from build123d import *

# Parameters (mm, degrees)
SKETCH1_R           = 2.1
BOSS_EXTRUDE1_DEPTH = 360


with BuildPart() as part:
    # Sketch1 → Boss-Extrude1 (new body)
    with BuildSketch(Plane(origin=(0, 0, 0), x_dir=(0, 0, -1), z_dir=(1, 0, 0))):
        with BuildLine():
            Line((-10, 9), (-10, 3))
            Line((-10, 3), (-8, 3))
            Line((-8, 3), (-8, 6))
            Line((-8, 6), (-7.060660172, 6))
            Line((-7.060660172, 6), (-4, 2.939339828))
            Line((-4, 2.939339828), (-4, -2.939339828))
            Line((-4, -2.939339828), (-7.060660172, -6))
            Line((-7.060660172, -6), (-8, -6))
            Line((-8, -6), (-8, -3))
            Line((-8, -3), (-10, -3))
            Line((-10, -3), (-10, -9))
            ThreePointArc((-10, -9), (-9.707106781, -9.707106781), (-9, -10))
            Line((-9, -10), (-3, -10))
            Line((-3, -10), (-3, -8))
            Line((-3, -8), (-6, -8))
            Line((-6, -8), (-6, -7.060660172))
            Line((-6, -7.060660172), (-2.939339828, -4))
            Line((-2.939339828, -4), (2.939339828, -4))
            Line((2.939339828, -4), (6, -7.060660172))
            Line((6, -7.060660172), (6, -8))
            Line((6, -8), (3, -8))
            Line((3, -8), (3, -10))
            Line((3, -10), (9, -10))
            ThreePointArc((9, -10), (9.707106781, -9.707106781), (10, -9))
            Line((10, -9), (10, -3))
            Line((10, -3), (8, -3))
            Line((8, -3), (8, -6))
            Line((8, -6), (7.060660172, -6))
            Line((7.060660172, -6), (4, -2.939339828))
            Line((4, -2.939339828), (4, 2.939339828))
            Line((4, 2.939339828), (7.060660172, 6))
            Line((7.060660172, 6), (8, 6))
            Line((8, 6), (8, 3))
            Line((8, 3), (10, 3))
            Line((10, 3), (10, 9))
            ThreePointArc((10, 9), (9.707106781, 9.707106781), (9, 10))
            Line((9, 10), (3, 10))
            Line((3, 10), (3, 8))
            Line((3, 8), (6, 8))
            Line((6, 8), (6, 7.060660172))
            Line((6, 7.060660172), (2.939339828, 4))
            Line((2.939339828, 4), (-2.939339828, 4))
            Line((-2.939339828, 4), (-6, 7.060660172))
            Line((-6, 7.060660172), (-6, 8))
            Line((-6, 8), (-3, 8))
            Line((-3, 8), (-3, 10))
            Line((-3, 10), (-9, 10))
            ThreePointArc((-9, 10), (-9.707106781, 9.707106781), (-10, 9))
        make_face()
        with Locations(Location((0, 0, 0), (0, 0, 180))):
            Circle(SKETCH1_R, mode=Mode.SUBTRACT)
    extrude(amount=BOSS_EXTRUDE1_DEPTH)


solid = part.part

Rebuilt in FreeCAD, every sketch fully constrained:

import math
import FreeCAD as App
import Part
import Sketcher

V = App.Vector

doc = App.newDocument("Part")
body = doc.addObject("PartDesign::Body", "Body")

# Sketch on YZ plane
sketch1 = body.newObject("Sketcher::SketchObject", "Sketch")
sketch1.AttachmentSupport = (doc.getObject("YZ_Plane"), [""])
sketch1.MapMode = "FlatFace"
sketch1.addGeometry(Part.LineSegment(V(9, 10, 0), V(3, 10, 0)), False)
sketch1.addGeometry(Part.LineSegment(V(3, 10, 0), V(3, 8, 0)), False)
sketch1.addGeometry(Part.LineSegment(V(3, 8, 0), V(6, 8, 0)), False)
sketch1.addGeometry(Part.LineSegment(V(6, 8, 0), V(6, 7.1, 0)), False)
sketch1.addGeometry(Part.LineSegment(V(6, 7.1, 0), V(2.9, 4, 0)), False)
sketch1.addGeometry(Part.LineSegment(V(2.9, 4, 0), V(-2.9, 4, 0)), False)
sketch1.addGeometry(Part.LineSegment(V(-2.9, 4, 0), V(-6, 7.1, 0)), False)
sketch1.addGeometry(Part.LineSegment(V(-6, 7.1, 0), V(-6, 8, 0)), False)
sketch1.addGeometry(Part.LineSegment(V(-6, 8, 0), V(-3, 8, 0)), False)
sketch1.addGeometry(Part.LineSegment(V(-3, 8, 0), V(-3, 10, 0)), False)
sketch1.addGeometry(Part.LineSegment(V(-3, 10, 0), V(-9, 10, 0)), False)
sketch1.addGeometry(Part.ArcOfCircle(Part.Circle(V(-9, 9, 0), V(0, 0, 1), 1), math.radians(90), math.radians(180)), False)
sketch1.addGeometry(Part.LineSegment(V(-10, 9, 0), V(-10, 3, 0)), False)
sketch1.addGeometry(Part.LineSegment(V(-10, 3, 0), V(-8, 3, 0)), False)
sketch1.addGeometry(Part.LineSegment(V(-8, 3, 0), V(-8, 6, 0)), False)
sketch1.addGeometry(Part.LineSegment(V(-8, 6, 0), V(-7.1, 6, 0)), False)
sketch1.addGeometry(Part.LineSegment(V(-7.1, 6, 0), V(-4, 2.9, 0)), False)
sketch1.addGeometry(Part.LineSegment(V(-4, 2.9, 0), V(-4, -2.9, 0)), False)
sketch1.addGeometry(Part.LineSegment(V(-4, -2.9, 0), V(-7.1, -6, 0)), False)
sketch1.addGeometry(Part.LineSegment(V(-7.1, -6, 0), V(-8, -6, 0)), False)
sketch1.addGeometry(Part.LineSegment(V(-8, -6, 0), V(-8, -3, 0)), False)
sketch1.addGeometry(Part.LineSegment(V(-8, -3, 0), V(-10, -3, 0)), False)
sketch1.addGeometry(Part.LineSegment(V(-10, -3, 0), V(-10, -9, 0)), False)
sketch1.addGeometry(Part.ArcOfCircle(Part.Circle(V(-9, -9, 0), V(0, 0, 1), 1), math.radians(-180), math.radians(-90)), False)
sketch1.addGeometry(Part.LineSegment(V(-9, -10, 0), V(-3, -10, 0)), False)
sketch1.addGeometry(Part.LineSegment(V(-3, -10, 0), V(-3, -8, 0)), False)
sketch1.addGeometry(Part.LineSegment(V(-3, -8, 0), V(-6, -8, 0)), False)
sketch1.addGeometry(Part.LineSegment(V(-6, -8, 0), V(-6, -7.1, 0)), False)
sketch1.addGeometry(Part.LineSegment(V(-6, -7.1, 0), V(-2.9, -4, 0)), False)
sketch1.addGeometry(Part.LineSegment(V(-2.9, -4, 0), V(2.9, -4, 0)), False)
sketch1.addGeometry(Part.LineSegment(V(2.9, -4, 0), V(6, -7.1, 0)), False)
sketch1.addGeometry(Part.LineSegment(V(6, -7.1, 0), V(6, -8, 0)), False)
sketch1.addGeometry(Part.LineSegment(V(6, -8, 0), V(3, -8, 0)), False)
sketch1.addGeometry(Part.LineSegment(V(3, -8, 0), V(3, -10, 0)), False)
sketch1.addGeometry(Part.LineSegment(V(3, -10, 0), V(9, -10, 0)), False)
sketch1.addGeometry(Part.ArcOfCircle(Part.Circle(V(9, -9, 0), V(0, 0, 1), 1), math.radians(-90), math.radians(0)), False)
sketch1.addGeometry(Part.LineSegment(V(10, -9, 0), V(10, -3, 0)), False)
sketch1.addGeometry(Part.LineSegment(V(10, -3, 0), V(8, -3, 0)), False)
sketch1.addGeometry(Part.LineSegment(V(8, -3, 0), V(8, -6, 0)), False)
sketch1.addGeometry(Part.LineSegment(V(8, -6, 0), V(7.1, -6, 0)), False)
sketch1.addGeometry(Part.LineSegment(V(7.1, -6, 0), V(4, -2.9, 0)), False)
sketch1.addGeometry(Part.LineSegment(V(4, -2.9, 0), V(4, 2.9, 0)), False)
sketch1.addGeometry(Part.LineSegment(V(4, 2.9, 0), V(7.1, 6, 0)), False)
sketch1.addGeometry(Part.LineSegment(V(7.1, 6, 0), V(8, 6, 0)), False)
sketch1.addGeometry(Part.LineSegment(V(8, 6, 0), V(8, 3, 0)), False)
sketch1.addGeometry(Part.LineSegment(V(8, 3, 0), V(10, 3, 0)), False)
sketch1.addGeometry(Part.LineSegment(V(10, 3, 0), V(10, 9, 0)), False)
sketch1.addGeometry(Part.ArcOfCircle(Part.Circle(V(9, 9, 0), V(0, 0, 1), 1), math.radians(0), math.radians(90)), False)
sketch1.addGeometry(Part.Circle(V(0, 0, 0), V(0, 0, 1), 2.1), False)
sketch1.addConstraint(Sketcher.Constraint("Coincident", 0, 2, 1, 1))
sketch1.addConstraint(Sketcher.Constraint("Coincident", 1, 2, 2, 1))
sketch1.addConstraint(Sketcher.Constraint("Coincident", 2, 2, 3, 1))
sketch1.addConstraint(Sketcher.Constraint("Coincident", 3, 2, 4, 1))
sketch1.addConstraint(Sketcher.Constraint("Coincident", 4, 2, 5, 1))
sketch1.addConstraint(Sketcher.Constraint("Coincident", 5, 2, 6, 1))
sketch1.addConstraint(Sketcher.Constraint("Coincident", 6, 2, 7, 1))
sketch1.addConstraint(Sketcher.Constraint("Coincident", 7, 2, 8, 1))
sketch1.addConstraint(Sketcher.Constraint("Coincident", 8, 2, 9, 1))
sketch1.addConstraint(Sketcher.Constraint("Coincident", 9, 2, 10, 1))
sketch1.addConstraint(Sketcher.Constraint("Tangent", 10, 2, 11, 1))
sketch1.addConstraint(Sketcher.Constraint("Tangent", 11, 2, 12, 1))
sketch1.addConstraint(Sketcher.Constraint("Coincident", 12, 2, 13, 1))
sketch1.addConstraint(Sketcher.Constraint("Coincident", 13, 2, 14, 1))
sketch1.addConstraint(Sketcher.Constraint("Coincident", 14, 2, 15, 1))
sketch1.addConstraint(Sketcher.Constraint("Coincident", 15, 2, 16, 1))
sketch1.addConstraint(Sketcher.Constraint("Coincident", 16, 2, 17, 1))
sketch1.addConstraint(Sketcher.Constraint("Coincident", 17, 2, 18, 1))
sketch1.addConstraint(Sketcher.Constraint("Coincident", 18, 2, 19, 1))
sketch1.addConstraint(Sketcher.Constraint("Coincident", 19, 2, 20, 1))
sketch1.addConstraint(Sketcher.Constraint("Coincident", 20, 2, 21, 1))
sketch1.addConstraint(Sketcher.Constraint("Coincident", 21, 2, 22, 1))
sketch1.addConstraint(Sketcher.Constraint("Tangent", 22, 2, 23, 1))
sketch1.addConstraint(Sketcher.Constraint("Tangent", 23, 2, 24, 1))
sketch1.addConstraint(Sketcher.Constraint("Coincident", 24, 2, 25, 1))
sketch1.addConstraint(Sketcher.Constraint("Coincident", 25, 2, 26, 1))
sketch1.addConstraint(Sketcher.Constraint("Coincident", 26, 2, 27, 1))
sketch1.addConstraint(Sketcher.Constraint("Coincident", 27, 2, 28, 1))
sketch1.addConstraint(Sketcher.Constraint("Coincident", 28, 2, 29, 1))
sketch1.addConstraint(Sketcher.Constraint("Coincident", 29, 2, 30, 1))
sketch1.addConstraint(Sketcher.Constraint("Coincident", 30, 2, 31, 1))
sketch1.addConstraint(Sketcher.Constraint("Coincident", 31, 2, 32, 1))
sketch1.addConstraint(Sketcher.Constraint("Coincident", 32, 2, 33, 1))
sketch1.addConstraint(Sketcher.Constraint("Coincident", 33, 2, 34, 1))
sketch1.addConstraint(Sketcher.Constraint("Tangent", 34, 2, 35, 1))
sketch1.addConstraint(Sketcher.Constraint("Tangent", 35, 2, 36, 1))
sketch1.addConstraint(Sketcher.Constraint("Coincident", 36, 2, 37, 1))
sketch1.addConstraint(Sketcher.Constraint("Coincident", 37, 2, 38, 1))
sketch1.addConstraint(Sketcher.Constraint("Coincident", 38, 2, 39, 1))
sketch1.addConstraint(Sketcher.Constraint("Coincident", 39, 2, 40, 1))
sketch1.addConstraint(Sketcher.Constraint("Coincident", 40, 2, 41, 1))
sketch1.addConstraint(Sketcher.Constraint("Coincident", 41, 2, 42, 1))
sketch1.addConstraint(Sketcher.Constraint("Coincident", 42, 2, 43, 1))
sketch1.addConstraint(Sketcher.Constraint("Coincident", 43, 2, 44, 1))
sketch1.addConstraint(Sketcher.Constraint("Coincident", 44, 2, 45, 1))
sketch1.addConstraint(Sketcher.Constraint("Coincident", 45, 2, 46, 1))
sketch1.addConstraint(Sketcher.Constraint("Tangent", 46, 2, 47, 1))
sketch1.addConstraint(Sketcher.Constraint("Tangent", 47, 2, 0, 1))
sketch1.addConstraint(Sketcher.Constraint("Horizontal", 0))
sketch1.addConstraint(Sketcher.Constraint("Vertical", 1))
sketch1.addConstraint(Sketcher.Constraint("Horizontal", 2))
sketch1.addConstraint(Sketcher.Constraint("Vertical", 3))
sketch1.addConstraint(Sketcher.Constraint("Horizontal", 5))
sketch1.addConstraint(Sketcher.Constraint("Vertical", 7))
sketch1.addConstraint(Sketcher.Constraint("Horizontal", 8))
sketch1.addConstraint(Sketcher.Constraint("Vertical", 9))
sketch1.addConstraint(Sketcher.Constraint("Horizontal", 10))
sketch1.addConstraint(Sketcher.Constraint("Vertical", 12))
sketch1.addConstraint(Sketcher.Constraint("Horizontal", 13))
sketch1.addConstraint(Sketcher.Constraint("Vertical", 14))
sketch1.addConstraint(Sketcher.Constraint("Horizontal", 15))
sketch1.addConstraint(Sketcher.Constraint("Vertical", 17))
sketch1.addConstraint(Sketcher.Constraint("Horizontal", 19))
sketch1.addConstraint(Sketcher.Constraint("Vertical", 20))
sketch1.addConstraint(Sketcher.Constraint("Horizontal", 21))
sketch1.addConstraint(Sketcher.Constraint("Vertical", 22))
sketch1.addConstraint(Sketcher.Constraint("Horizontal", 24))
sketch1.addConstraint(Sketcher.Constraint("Vertical", 25))
sketch1.addConstraint(Sketcher.Constraint("Horizontal", 26))
sketch1.addConstraint(Sketcher.Constraint("Vertical", 27))
sketch1.addConstraint(Sketcher.Constraint("Horizontal", 29))
sketch1.addConstraint(Sketcher.Constraint("Vertical", 31))
sketch1.addConstraint(Sketcher.Constraint("Horizontal", 32))
sketch1.addConstraint(Sketcher.Constraint("Vertical", 33))
sketch1.addConstraint(Sketcher.Constraint("Horizontal", 34))
sketch1.addConstraint(Sketcher.Constraint("Vertical", 36))
sketch1.addConstraint(Sketcher.Constraint("Horizontal", 37))
sketch1.addConstraint(Sketcher.Constraint("Vertical", 38))
sketch1.addConstraint(Sketcher.Constraint("Horizontal", 39))
sketch1.addConstraint(Sketcher.Constraint("Vertical", 41))
sketch1.addConstraint(Sketcher.Constraint("Horizontal", 43))
sketch1.addConstraint(Sketcher.Constraint("Vertical", 44))
sketch1.addConstraint(Sketcher.Constraint("Horizontal", 45))
sketch1.addConstraint(Sketcher.Constraint("Vertical", 46))
sketch1.addConstraint(Sketcher.Constraint("Coincident", 48, 3, -1, 1))
sketch1.addConstraint(Sketcher.Constraint("Equal", 11, 23))
sketch1.addConstraint(Sketcher.Constraint("Equal", 23, 35))
sketch1.addConstraint(Sketcher.Constraint("Equal", 35, 47))
sketch1.addConstraint(Sketcher.Constraint("Symmetric", 11, 3, 35, 3, -1, 1))
sketch1.addConstraint(Sketcher.Constraint("Symmetric", 23, 3, 47, 3, -1, 1))
sketch1.addConstraint(Sketcher.Constraint("Symmetric", 1, 2, 25, 2, -1, 1))
sketch1.addConstraint(Sketcher.Constraint("Symmetric", 3, 2, 27, 2, -1, 1))
sketch1.addConstraint(Sketcher.Constraint("Symmetric", 4, 2, 28, 2, -1, 1))
sketch1.addConstraint(Sketcher.Constraint("Symmetric", 6, 2, 30, 2, -1, 1))
sketch1.addConstraint(Sketcher.Constraint("Symmetric", 8, 2, 32, 2, -1, 1))
sketch1.addConstraint(Sketcher.Constraint("Symmetric", 13, 2, 37, 2, -1, 1))
sketch1.addConstraint(Sketcher.Constraint("Symmetric", 15, 2, 39, 2, -1, 1))
sketch1.addConstraint(Sketcher.Constraint("Symmetric", 16, 2, 40, 2, -1, 1))
sketch1.addConstraint(Sketcher.Constraint("Symmetric", 18, 2, 42, 2, -1, 1))
sketch1.addConstraint(Sketcher.Constraint("Symmetric", 20, 2, 44, 2, -1, 1))
sketch1.addConstraint(Sketcher.Constraint("Symmetric", 23, 3, 35, 3, -2))
sketch1.addConstraint(Sketcher.Constraint("Symmetric", 3, 2, 6, 2, -2))
sketch1.addConstraint(Sketcher.Constraint("Symmetric", 1, 2, 8, 2, -2))
sketch1.addConstraint(Sketcher.Constraint("Symmetric", 20, 2, 37, 2, -2))
sketch1.addConstraint(Sketcher.Constraint("Symmetric", 18, 2, 39, 2, -2))
sketch1.addConstraint(Sketcher.Constraint("Perpendicular", 4, 6))
sketch1.addConstraint(Sketcher.Constraint("Parallel", 6, 16))
sketch1.addConstraint(Sketcher.Constraint("Perpendicular", 16, 18))
sketch1.addConstraint(Sketcher.Constraint("Perpendicular", 28, 30))
sketch1.addConstraint(Sketcher.Constraint("Perpendicular", 40, 42))
sketch1.addConstraint(Sketcher.Constraint("Horizontal", 17, 2, 40, 2))
sketch1.addConstraint(Sketcher.Constraint("Equal", 45, 1))
sketch1.addConstraint(Sketcher.Constraint("Equal", 43, 3))
sketch1.addConstraint(Sketcher.Constraint("Equal", 34, 12))
sketch1.addConstraint(Sketcher.Constraint("Equal", 32, 14))
sketch1.addConstraint(Sketcher.Constraint("Equal", 29, 17))
sketch1.addConstraint(Sketcher.Constraint("Equal", 6, 16))
sketch1.addConstraint(Sketcher.Constraint("Radius", 11, 1.0))
sketch1.addConstraint(Sketcher.Constraint("Diameter", 48, 4.2))
sketch1.addConstraint(Sketcher.Constraint("DistanceX", 0, 2, 0, 1, 6.0))
sketch1.addConstraint(Sketcher.Constraint("DistanceX", 2, 1, 2, 2, 3.0))
sketch1.addConstraint(Sketcher.Constraint("DistanceX", 13, 1, 13, 2, 2.0))
sketch1.addConstraint(Sketcher.Constraint("DistanceX", 11, 3, -1, 1, 9.0))
sketch1.addConstraint(Sketcher.Constraint("DistanceY", -1, 1, 4, 2, 4.0))
sketch1.addConstraint(Sketcher.Constraint("DistanceX", 5, 2, 5, 1, 5.87868))
pad1 = body.newObject("PartDesign::Pad", "Pad")
pad1.Profile = sketch1
pad1.Length = 360

doc.recompute()
